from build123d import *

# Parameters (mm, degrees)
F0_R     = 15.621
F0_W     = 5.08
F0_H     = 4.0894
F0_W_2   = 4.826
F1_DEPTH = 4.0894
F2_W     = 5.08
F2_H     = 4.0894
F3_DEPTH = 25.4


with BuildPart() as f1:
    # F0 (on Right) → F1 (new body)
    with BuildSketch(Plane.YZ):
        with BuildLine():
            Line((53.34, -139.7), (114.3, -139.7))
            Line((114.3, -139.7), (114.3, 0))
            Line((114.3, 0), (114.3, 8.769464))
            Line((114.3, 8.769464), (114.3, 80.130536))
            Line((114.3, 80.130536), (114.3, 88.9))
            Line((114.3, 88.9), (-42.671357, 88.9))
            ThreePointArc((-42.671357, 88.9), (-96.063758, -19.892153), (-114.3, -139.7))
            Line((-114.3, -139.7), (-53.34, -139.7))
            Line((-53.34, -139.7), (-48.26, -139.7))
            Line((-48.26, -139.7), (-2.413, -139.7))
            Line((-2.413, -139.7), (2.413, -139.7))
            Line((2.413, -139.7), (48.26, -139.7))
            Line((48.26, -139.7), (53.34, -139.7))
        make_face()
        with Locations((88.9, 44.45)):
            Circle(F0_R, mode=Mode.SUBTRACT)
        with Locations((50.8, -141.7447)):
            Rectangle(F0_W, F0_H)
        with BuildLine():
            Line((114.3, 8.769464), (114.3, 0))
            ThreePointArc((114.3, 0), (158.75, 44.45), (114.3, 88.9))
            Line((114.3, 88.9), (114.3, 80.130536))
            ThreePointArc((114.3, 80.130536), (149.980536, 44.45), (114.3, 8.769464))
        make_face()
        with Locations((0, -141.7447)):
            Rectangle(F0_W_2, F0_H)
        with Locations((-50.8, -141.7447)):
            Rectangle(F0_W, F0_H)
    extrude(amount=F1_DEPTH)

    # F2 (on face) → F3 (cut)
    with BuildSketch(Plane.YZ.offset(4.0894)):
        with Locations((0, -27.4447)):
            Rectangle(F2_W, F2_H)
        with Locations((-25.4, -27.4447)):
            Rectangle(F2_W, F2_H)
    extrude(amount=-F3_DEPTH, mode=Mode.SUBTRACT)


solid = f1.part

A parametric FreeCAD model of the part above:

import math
import FreeCAD as App
import Part
import Sketcher
from FreeCAD import Vector
Q = App.Units.Quantity


def add_polygon(sketch, points):
    """Adds a closed chain of lines whose ends are joined by coincident constraints."""
    first, n = sketch.GeometryCount, len(points)
    for a, b in zip(points, points[1:] + points[:1]):
        sketch.addGeometry(Part.LineSegment(App.Vector(*a, 0), App.Vector(*b, 0)), False)
    for i in range(n):
        sketch.addConstraint(Sketcher.Constraint("Coincident", first + i, 2, first + (i + 1) % n, 1))

doc = App.newDocument("Part")
body = doc.addObject("PartDesign::Body", "Body")

# Sketch on YZ plane
sketch1 = doc.addObject("Sketcher::SketchObject", "Sketch")
body.addObject(sketch1)
sketch1.AttachmentSupport = (doc.YZ_Plane, [""])
sketch1.MapMode = "FlatFace"
sketch1.addGeometry([
    Part.LineSegment(Vector(114.3, -139.7, 0), Vector(114.3, 0, 0)),  # 0
    Part.ArcOfCircle(Part.Circle(Vector(114.3, 44.45, 0), Vector(0, 0, 1), 44.45), math.radians(-90), math.radians(90)),  # 1
    Part.LineSegment(Vector(114.3, 88.9, 0), Vector(-42.671357, 88.9, 0)),  # 2
    Part.ArcOfCircle(Part.Circle(Vector(284.338408, -139.085901, 0), Vector(0, 0, 1), 398.638881), math.radians(145.116417), math.radians(180.088264)),  # 3
    Part.LineSegment(Vector(-114.3, -139.7, 0), Vector(-53.34, -139.7, 0)),  # 4
    Part.LineSegment(Vector(-53.34, -139.7, 0), Vector(-53.34, -143.7894, 0)),  # 5
    Part.LineSegment(Vector(-53.34, -143.7894, 0), Vector(-48.26, -143.7894, 0)),  # 6
    Part.LineSegment(Vector(-48.26, -143.7894, 0), Vector(-48.26, -139.7, 0)),  # 7
    Part.LineSegment(Vector(-48.26, -139.7, 0), Vector(-2.413, -139.7, 0)),  # 8
    Part.LineSegment(Vector(-2.413, -139.7, 0), Vector(-2.413, -143.7894, 0)),  # 9
    Part.LineSegment(Vector(-2.413, -143.7894, 0), Vector(2.413, -143.7894, 0)),  # 10
    Part.LineSegment(Vector(2.413, -143.7894, 0), Vector(2.413, -139.7, 0)),  # 11
    Part.LineSegment(Vector(2.413, -139.7, 0), Vector(48.26, -139.7, 0)),  # 12
    Part.LineSegment(Vector(48.26, -139.7, 0), Vector(48.26, -143.7894, 0)),  # 13
    Part.LineSegment(Vector(48.26, -143.7894, 0), Vector(53.34, -143.7894, 0)),  # 14
    Part.LineSegment(Vector(53.34, -143.7894, 0), Vector(53.34, -139.7, 0)),  # 15
    Part.LineSegment(Vector(53.34, -139.7, 0), Vector(114.3, -139.7, 0)),  # 16
    Part.LineSegment(Vector(114.3, 8.769464, 0), Vector(114.3, 80.130536, 0)),  # 17
    Part.ArcOfCircle(Part.Circle(Vector(114.3, 44.45, 0), Vector(0, 0, 1), 35.680536), math.radians(-90), math.radians(90)),  # 18
    Part.Circle(Vector(88.9, 44.45, 0), Vector(0, 0, 1), 15.621),  # 19
], False)
sketch1.addConstraint([
    Sketcher.Constraint("Coincident", 0, 2, 1, 1),
    Sketcher.Constraint("Tangent", 1, 2, 2, 1),
    Sketcher.Constraint("Coincident", 2, 2, 3, 1),
    Sketcher.Constraint("Coincident", 3, 2, 4, 1),
    Sketcher.Constraint("Coincident", 4, 2, 5, 1),
    Sketcher.Constraint("Coincident", 5, 2, 6, 1),
    Sketcher.Constraint("Coincident", 6, 2, 7, 1),
    Sketcher.Constraint("Coincident", 7, 2, 8, 1),
    Sketcher.Constraint("Coincident", 8, 2, 9, 1),
    Sketcher.Constraint("Coincident", 9, 2, 10, 1),
    Sketcher.Constraint("Coincident", 10, 2, 11, 1),
    Sketcher.Constraint("Coincident", 11, 2, 12, 1),
    Sketcher.Constraint("Coincident", 12, 2, 13, 1),
    Sketcher.Constraint("Coincident", 13, 2, 14, 1),
    Sketcher.Constraint("Coincident", 14, 2, 15, 1),
    Sketcher.Constraint("Coincident", 15, 2, 16, 1),
    Sketcher.Constraint("Coincident", 16, 2, 0, 1),
    Sketcher.Constraint("Coincident", 17, 1, 18, 1),
    Sketcher.Constraint("Coincident", 18, 2, 17, 2),
    Sketcher.Constraint("Vertical", 0),
    Sketcher.Constraint("Horizontal", 2),
    Sketcher.Constraint("Horizontal", 4),
    Sketcher.Constraint("Vertical", 5),
    Sketcher.Constraint("Horizontal", 6),
    Sketcher.Constraint("Vertical", 7),
    Sketcher.Constraint("Horizontal", 8),
    Sketcher.Constraint("Vertical", 9),
    Sketcher.Constraint("Horizontal", 10),
    Sketcher.Constraint("Vertical", 11),
    Sketcher.Constraint("Horizontal", 12),
    Sketcher.Constraint("Vertical", 13),
    Sketcher.Constraint("Horizontal", 14),
    Sketcher.Constraint("Vertical", 15),
    Sketcher.Constraint("Horizontal", 16),
    Sketcher.Constraint("Vertical", 17),
    Sketcher.Constraint("Coincident", 18, 3, 1, 3),
    Sketcher.Constraint("Symmetric", 8, 2, 11, 2, -2),
    Sketcher.Constraint("Symmetric", 6, 2, 13, 2, -2),
    Sketcher.Constraint("Symmetric", 4, 2, 15, 2, -2),
    Sketcher.Constraint("PointOnObject", 0, 2, -1),
    Sketcher.Constraint("Horizontal", 18, 3, 19, 3),
    Sketcher.Constraint("Horizontal", 4, 2, 7, 2),
    Sketcher.Constraint("Horizontal", 6, 2, 9, 2),
    Sketcher.Constraint("Vertical", 18, 3, 0, 2),
    Sketcher.Constraint("Vertical", 16, 2, 17, 1),
    Sketcher.Constraint("Equal", 4, 16),
    Sketcher.Constraint("Diameter", 19, Q("1.23 in")),
    Sketcher.Constraint("Radius", 1, Q("1.75 in")),
    Sketcher.Constraint("DistanceX", 4, 1, 4, 2, Q("2.4 in")),
    Sketcher.Constraint("DistanceX", 6, 1, 6, 2, Q("0.2 in")),
    Sketcher.Constraint("DistanceY", 0, 1, 0, 2, Q("5.5 in")),
    Sketcher.Constraint("DistanceX", 19, 3, 1, 3, Q("1 in")),
    Sketcher.Constraint("DistanceX", 3, 2, 0, 2, Q("9 in")),
    Sketcher.Constraint("DistanceX", 10, 1, 10, 2, Q("0.19 in")),
    Sketcher.Constraint("DistanceY", 5, 2, 5, 1, Q("0.161 in")),
    Sketcher.Constraint("Radius", 3, 398.638881),
    Sketcher.Constraint("Radius", 18, 35.680536),
    Sketcher.Constraint("DistanceY", 3, 3, -1, 1, 139.085901),
])
pad1 = doc.addObject("PartDesign::Pad", "Pad")
body.addObject(pad1)
pad1.Profile = sketch1
pad1.Length = Q("0.161 in")

# Sketch on YZ plane
sketch2 = doc.addObject("Sketcher::SketchObject", "Sketch001")
body.addObject(sketch2)
sketch2.AttachmentSupport = (doc.YZ_Plane, [""])
sketch2.MapMode = "FlatFace"
sketch2.AttachmentOffset = App.Placement(Vector(0, 0, 0.161 * 25.4), App.Rotation())
add_polygon(sketch2, [(-2.54, -25.4), (-2.54, -29.4894), (2.54, -29.4894), (2.54, -25.4)])  # lines 0-3
add_polygon(sketch2, [(-27.94, -25.4), (-27.94, -29.4894), (-22.86, -29.4894), (-22.86, -25.4)])  # lines 4-7
sketch2.addConstraint([
    Sketcher.Constraint("Vertical", 0),
    Sketcher.Constraint("Horizontal", 1),
    Sketcher.Constraint("Vertical", 2),
    Sketcher.Constraint("Horizontal", 3),
    Sketcher.Constraint("Vertical", 4),
    Sketcher.Constraint("Horizontal", 5),
    Sketcher.Constraint("Vertical", 6),
    Sketcher.Constraint("Horizontal", 7),
    Sketcher.Constraint("Horizontal", 1, 2, 4, 2),
    Sketcher.Constraint("Horizontal", 3, 2, 6, 2),
    Sketcher.Constraint("Equal", 3, 5),
    Sketcher.Constraint("DistanceX", 1, 1, 1, 2, Q("0.2 in")),
    Sketcher.Constraint("DistanceY", 2, 2, -1, 1, Q("1 in")),
    Sketcher.Constraint("DistanceX", 4, 2, 0, 2, Q("1 in")),
    Sketcher.Constraint("DistanceX", 0, 2, -1, 1, Q("0.1 in")),
    Sketcher.Constraint("DistanceY", 0, 2, 0, 1, Q("0.161 in")),
])
pocket1 = doc.addObject("PartDesign::Pocket", "Pocket")
body.addObject(pocket1)
pocket1.Profile = sketch2
pocket1.Length = Q("1 in")

doc.recompute()
